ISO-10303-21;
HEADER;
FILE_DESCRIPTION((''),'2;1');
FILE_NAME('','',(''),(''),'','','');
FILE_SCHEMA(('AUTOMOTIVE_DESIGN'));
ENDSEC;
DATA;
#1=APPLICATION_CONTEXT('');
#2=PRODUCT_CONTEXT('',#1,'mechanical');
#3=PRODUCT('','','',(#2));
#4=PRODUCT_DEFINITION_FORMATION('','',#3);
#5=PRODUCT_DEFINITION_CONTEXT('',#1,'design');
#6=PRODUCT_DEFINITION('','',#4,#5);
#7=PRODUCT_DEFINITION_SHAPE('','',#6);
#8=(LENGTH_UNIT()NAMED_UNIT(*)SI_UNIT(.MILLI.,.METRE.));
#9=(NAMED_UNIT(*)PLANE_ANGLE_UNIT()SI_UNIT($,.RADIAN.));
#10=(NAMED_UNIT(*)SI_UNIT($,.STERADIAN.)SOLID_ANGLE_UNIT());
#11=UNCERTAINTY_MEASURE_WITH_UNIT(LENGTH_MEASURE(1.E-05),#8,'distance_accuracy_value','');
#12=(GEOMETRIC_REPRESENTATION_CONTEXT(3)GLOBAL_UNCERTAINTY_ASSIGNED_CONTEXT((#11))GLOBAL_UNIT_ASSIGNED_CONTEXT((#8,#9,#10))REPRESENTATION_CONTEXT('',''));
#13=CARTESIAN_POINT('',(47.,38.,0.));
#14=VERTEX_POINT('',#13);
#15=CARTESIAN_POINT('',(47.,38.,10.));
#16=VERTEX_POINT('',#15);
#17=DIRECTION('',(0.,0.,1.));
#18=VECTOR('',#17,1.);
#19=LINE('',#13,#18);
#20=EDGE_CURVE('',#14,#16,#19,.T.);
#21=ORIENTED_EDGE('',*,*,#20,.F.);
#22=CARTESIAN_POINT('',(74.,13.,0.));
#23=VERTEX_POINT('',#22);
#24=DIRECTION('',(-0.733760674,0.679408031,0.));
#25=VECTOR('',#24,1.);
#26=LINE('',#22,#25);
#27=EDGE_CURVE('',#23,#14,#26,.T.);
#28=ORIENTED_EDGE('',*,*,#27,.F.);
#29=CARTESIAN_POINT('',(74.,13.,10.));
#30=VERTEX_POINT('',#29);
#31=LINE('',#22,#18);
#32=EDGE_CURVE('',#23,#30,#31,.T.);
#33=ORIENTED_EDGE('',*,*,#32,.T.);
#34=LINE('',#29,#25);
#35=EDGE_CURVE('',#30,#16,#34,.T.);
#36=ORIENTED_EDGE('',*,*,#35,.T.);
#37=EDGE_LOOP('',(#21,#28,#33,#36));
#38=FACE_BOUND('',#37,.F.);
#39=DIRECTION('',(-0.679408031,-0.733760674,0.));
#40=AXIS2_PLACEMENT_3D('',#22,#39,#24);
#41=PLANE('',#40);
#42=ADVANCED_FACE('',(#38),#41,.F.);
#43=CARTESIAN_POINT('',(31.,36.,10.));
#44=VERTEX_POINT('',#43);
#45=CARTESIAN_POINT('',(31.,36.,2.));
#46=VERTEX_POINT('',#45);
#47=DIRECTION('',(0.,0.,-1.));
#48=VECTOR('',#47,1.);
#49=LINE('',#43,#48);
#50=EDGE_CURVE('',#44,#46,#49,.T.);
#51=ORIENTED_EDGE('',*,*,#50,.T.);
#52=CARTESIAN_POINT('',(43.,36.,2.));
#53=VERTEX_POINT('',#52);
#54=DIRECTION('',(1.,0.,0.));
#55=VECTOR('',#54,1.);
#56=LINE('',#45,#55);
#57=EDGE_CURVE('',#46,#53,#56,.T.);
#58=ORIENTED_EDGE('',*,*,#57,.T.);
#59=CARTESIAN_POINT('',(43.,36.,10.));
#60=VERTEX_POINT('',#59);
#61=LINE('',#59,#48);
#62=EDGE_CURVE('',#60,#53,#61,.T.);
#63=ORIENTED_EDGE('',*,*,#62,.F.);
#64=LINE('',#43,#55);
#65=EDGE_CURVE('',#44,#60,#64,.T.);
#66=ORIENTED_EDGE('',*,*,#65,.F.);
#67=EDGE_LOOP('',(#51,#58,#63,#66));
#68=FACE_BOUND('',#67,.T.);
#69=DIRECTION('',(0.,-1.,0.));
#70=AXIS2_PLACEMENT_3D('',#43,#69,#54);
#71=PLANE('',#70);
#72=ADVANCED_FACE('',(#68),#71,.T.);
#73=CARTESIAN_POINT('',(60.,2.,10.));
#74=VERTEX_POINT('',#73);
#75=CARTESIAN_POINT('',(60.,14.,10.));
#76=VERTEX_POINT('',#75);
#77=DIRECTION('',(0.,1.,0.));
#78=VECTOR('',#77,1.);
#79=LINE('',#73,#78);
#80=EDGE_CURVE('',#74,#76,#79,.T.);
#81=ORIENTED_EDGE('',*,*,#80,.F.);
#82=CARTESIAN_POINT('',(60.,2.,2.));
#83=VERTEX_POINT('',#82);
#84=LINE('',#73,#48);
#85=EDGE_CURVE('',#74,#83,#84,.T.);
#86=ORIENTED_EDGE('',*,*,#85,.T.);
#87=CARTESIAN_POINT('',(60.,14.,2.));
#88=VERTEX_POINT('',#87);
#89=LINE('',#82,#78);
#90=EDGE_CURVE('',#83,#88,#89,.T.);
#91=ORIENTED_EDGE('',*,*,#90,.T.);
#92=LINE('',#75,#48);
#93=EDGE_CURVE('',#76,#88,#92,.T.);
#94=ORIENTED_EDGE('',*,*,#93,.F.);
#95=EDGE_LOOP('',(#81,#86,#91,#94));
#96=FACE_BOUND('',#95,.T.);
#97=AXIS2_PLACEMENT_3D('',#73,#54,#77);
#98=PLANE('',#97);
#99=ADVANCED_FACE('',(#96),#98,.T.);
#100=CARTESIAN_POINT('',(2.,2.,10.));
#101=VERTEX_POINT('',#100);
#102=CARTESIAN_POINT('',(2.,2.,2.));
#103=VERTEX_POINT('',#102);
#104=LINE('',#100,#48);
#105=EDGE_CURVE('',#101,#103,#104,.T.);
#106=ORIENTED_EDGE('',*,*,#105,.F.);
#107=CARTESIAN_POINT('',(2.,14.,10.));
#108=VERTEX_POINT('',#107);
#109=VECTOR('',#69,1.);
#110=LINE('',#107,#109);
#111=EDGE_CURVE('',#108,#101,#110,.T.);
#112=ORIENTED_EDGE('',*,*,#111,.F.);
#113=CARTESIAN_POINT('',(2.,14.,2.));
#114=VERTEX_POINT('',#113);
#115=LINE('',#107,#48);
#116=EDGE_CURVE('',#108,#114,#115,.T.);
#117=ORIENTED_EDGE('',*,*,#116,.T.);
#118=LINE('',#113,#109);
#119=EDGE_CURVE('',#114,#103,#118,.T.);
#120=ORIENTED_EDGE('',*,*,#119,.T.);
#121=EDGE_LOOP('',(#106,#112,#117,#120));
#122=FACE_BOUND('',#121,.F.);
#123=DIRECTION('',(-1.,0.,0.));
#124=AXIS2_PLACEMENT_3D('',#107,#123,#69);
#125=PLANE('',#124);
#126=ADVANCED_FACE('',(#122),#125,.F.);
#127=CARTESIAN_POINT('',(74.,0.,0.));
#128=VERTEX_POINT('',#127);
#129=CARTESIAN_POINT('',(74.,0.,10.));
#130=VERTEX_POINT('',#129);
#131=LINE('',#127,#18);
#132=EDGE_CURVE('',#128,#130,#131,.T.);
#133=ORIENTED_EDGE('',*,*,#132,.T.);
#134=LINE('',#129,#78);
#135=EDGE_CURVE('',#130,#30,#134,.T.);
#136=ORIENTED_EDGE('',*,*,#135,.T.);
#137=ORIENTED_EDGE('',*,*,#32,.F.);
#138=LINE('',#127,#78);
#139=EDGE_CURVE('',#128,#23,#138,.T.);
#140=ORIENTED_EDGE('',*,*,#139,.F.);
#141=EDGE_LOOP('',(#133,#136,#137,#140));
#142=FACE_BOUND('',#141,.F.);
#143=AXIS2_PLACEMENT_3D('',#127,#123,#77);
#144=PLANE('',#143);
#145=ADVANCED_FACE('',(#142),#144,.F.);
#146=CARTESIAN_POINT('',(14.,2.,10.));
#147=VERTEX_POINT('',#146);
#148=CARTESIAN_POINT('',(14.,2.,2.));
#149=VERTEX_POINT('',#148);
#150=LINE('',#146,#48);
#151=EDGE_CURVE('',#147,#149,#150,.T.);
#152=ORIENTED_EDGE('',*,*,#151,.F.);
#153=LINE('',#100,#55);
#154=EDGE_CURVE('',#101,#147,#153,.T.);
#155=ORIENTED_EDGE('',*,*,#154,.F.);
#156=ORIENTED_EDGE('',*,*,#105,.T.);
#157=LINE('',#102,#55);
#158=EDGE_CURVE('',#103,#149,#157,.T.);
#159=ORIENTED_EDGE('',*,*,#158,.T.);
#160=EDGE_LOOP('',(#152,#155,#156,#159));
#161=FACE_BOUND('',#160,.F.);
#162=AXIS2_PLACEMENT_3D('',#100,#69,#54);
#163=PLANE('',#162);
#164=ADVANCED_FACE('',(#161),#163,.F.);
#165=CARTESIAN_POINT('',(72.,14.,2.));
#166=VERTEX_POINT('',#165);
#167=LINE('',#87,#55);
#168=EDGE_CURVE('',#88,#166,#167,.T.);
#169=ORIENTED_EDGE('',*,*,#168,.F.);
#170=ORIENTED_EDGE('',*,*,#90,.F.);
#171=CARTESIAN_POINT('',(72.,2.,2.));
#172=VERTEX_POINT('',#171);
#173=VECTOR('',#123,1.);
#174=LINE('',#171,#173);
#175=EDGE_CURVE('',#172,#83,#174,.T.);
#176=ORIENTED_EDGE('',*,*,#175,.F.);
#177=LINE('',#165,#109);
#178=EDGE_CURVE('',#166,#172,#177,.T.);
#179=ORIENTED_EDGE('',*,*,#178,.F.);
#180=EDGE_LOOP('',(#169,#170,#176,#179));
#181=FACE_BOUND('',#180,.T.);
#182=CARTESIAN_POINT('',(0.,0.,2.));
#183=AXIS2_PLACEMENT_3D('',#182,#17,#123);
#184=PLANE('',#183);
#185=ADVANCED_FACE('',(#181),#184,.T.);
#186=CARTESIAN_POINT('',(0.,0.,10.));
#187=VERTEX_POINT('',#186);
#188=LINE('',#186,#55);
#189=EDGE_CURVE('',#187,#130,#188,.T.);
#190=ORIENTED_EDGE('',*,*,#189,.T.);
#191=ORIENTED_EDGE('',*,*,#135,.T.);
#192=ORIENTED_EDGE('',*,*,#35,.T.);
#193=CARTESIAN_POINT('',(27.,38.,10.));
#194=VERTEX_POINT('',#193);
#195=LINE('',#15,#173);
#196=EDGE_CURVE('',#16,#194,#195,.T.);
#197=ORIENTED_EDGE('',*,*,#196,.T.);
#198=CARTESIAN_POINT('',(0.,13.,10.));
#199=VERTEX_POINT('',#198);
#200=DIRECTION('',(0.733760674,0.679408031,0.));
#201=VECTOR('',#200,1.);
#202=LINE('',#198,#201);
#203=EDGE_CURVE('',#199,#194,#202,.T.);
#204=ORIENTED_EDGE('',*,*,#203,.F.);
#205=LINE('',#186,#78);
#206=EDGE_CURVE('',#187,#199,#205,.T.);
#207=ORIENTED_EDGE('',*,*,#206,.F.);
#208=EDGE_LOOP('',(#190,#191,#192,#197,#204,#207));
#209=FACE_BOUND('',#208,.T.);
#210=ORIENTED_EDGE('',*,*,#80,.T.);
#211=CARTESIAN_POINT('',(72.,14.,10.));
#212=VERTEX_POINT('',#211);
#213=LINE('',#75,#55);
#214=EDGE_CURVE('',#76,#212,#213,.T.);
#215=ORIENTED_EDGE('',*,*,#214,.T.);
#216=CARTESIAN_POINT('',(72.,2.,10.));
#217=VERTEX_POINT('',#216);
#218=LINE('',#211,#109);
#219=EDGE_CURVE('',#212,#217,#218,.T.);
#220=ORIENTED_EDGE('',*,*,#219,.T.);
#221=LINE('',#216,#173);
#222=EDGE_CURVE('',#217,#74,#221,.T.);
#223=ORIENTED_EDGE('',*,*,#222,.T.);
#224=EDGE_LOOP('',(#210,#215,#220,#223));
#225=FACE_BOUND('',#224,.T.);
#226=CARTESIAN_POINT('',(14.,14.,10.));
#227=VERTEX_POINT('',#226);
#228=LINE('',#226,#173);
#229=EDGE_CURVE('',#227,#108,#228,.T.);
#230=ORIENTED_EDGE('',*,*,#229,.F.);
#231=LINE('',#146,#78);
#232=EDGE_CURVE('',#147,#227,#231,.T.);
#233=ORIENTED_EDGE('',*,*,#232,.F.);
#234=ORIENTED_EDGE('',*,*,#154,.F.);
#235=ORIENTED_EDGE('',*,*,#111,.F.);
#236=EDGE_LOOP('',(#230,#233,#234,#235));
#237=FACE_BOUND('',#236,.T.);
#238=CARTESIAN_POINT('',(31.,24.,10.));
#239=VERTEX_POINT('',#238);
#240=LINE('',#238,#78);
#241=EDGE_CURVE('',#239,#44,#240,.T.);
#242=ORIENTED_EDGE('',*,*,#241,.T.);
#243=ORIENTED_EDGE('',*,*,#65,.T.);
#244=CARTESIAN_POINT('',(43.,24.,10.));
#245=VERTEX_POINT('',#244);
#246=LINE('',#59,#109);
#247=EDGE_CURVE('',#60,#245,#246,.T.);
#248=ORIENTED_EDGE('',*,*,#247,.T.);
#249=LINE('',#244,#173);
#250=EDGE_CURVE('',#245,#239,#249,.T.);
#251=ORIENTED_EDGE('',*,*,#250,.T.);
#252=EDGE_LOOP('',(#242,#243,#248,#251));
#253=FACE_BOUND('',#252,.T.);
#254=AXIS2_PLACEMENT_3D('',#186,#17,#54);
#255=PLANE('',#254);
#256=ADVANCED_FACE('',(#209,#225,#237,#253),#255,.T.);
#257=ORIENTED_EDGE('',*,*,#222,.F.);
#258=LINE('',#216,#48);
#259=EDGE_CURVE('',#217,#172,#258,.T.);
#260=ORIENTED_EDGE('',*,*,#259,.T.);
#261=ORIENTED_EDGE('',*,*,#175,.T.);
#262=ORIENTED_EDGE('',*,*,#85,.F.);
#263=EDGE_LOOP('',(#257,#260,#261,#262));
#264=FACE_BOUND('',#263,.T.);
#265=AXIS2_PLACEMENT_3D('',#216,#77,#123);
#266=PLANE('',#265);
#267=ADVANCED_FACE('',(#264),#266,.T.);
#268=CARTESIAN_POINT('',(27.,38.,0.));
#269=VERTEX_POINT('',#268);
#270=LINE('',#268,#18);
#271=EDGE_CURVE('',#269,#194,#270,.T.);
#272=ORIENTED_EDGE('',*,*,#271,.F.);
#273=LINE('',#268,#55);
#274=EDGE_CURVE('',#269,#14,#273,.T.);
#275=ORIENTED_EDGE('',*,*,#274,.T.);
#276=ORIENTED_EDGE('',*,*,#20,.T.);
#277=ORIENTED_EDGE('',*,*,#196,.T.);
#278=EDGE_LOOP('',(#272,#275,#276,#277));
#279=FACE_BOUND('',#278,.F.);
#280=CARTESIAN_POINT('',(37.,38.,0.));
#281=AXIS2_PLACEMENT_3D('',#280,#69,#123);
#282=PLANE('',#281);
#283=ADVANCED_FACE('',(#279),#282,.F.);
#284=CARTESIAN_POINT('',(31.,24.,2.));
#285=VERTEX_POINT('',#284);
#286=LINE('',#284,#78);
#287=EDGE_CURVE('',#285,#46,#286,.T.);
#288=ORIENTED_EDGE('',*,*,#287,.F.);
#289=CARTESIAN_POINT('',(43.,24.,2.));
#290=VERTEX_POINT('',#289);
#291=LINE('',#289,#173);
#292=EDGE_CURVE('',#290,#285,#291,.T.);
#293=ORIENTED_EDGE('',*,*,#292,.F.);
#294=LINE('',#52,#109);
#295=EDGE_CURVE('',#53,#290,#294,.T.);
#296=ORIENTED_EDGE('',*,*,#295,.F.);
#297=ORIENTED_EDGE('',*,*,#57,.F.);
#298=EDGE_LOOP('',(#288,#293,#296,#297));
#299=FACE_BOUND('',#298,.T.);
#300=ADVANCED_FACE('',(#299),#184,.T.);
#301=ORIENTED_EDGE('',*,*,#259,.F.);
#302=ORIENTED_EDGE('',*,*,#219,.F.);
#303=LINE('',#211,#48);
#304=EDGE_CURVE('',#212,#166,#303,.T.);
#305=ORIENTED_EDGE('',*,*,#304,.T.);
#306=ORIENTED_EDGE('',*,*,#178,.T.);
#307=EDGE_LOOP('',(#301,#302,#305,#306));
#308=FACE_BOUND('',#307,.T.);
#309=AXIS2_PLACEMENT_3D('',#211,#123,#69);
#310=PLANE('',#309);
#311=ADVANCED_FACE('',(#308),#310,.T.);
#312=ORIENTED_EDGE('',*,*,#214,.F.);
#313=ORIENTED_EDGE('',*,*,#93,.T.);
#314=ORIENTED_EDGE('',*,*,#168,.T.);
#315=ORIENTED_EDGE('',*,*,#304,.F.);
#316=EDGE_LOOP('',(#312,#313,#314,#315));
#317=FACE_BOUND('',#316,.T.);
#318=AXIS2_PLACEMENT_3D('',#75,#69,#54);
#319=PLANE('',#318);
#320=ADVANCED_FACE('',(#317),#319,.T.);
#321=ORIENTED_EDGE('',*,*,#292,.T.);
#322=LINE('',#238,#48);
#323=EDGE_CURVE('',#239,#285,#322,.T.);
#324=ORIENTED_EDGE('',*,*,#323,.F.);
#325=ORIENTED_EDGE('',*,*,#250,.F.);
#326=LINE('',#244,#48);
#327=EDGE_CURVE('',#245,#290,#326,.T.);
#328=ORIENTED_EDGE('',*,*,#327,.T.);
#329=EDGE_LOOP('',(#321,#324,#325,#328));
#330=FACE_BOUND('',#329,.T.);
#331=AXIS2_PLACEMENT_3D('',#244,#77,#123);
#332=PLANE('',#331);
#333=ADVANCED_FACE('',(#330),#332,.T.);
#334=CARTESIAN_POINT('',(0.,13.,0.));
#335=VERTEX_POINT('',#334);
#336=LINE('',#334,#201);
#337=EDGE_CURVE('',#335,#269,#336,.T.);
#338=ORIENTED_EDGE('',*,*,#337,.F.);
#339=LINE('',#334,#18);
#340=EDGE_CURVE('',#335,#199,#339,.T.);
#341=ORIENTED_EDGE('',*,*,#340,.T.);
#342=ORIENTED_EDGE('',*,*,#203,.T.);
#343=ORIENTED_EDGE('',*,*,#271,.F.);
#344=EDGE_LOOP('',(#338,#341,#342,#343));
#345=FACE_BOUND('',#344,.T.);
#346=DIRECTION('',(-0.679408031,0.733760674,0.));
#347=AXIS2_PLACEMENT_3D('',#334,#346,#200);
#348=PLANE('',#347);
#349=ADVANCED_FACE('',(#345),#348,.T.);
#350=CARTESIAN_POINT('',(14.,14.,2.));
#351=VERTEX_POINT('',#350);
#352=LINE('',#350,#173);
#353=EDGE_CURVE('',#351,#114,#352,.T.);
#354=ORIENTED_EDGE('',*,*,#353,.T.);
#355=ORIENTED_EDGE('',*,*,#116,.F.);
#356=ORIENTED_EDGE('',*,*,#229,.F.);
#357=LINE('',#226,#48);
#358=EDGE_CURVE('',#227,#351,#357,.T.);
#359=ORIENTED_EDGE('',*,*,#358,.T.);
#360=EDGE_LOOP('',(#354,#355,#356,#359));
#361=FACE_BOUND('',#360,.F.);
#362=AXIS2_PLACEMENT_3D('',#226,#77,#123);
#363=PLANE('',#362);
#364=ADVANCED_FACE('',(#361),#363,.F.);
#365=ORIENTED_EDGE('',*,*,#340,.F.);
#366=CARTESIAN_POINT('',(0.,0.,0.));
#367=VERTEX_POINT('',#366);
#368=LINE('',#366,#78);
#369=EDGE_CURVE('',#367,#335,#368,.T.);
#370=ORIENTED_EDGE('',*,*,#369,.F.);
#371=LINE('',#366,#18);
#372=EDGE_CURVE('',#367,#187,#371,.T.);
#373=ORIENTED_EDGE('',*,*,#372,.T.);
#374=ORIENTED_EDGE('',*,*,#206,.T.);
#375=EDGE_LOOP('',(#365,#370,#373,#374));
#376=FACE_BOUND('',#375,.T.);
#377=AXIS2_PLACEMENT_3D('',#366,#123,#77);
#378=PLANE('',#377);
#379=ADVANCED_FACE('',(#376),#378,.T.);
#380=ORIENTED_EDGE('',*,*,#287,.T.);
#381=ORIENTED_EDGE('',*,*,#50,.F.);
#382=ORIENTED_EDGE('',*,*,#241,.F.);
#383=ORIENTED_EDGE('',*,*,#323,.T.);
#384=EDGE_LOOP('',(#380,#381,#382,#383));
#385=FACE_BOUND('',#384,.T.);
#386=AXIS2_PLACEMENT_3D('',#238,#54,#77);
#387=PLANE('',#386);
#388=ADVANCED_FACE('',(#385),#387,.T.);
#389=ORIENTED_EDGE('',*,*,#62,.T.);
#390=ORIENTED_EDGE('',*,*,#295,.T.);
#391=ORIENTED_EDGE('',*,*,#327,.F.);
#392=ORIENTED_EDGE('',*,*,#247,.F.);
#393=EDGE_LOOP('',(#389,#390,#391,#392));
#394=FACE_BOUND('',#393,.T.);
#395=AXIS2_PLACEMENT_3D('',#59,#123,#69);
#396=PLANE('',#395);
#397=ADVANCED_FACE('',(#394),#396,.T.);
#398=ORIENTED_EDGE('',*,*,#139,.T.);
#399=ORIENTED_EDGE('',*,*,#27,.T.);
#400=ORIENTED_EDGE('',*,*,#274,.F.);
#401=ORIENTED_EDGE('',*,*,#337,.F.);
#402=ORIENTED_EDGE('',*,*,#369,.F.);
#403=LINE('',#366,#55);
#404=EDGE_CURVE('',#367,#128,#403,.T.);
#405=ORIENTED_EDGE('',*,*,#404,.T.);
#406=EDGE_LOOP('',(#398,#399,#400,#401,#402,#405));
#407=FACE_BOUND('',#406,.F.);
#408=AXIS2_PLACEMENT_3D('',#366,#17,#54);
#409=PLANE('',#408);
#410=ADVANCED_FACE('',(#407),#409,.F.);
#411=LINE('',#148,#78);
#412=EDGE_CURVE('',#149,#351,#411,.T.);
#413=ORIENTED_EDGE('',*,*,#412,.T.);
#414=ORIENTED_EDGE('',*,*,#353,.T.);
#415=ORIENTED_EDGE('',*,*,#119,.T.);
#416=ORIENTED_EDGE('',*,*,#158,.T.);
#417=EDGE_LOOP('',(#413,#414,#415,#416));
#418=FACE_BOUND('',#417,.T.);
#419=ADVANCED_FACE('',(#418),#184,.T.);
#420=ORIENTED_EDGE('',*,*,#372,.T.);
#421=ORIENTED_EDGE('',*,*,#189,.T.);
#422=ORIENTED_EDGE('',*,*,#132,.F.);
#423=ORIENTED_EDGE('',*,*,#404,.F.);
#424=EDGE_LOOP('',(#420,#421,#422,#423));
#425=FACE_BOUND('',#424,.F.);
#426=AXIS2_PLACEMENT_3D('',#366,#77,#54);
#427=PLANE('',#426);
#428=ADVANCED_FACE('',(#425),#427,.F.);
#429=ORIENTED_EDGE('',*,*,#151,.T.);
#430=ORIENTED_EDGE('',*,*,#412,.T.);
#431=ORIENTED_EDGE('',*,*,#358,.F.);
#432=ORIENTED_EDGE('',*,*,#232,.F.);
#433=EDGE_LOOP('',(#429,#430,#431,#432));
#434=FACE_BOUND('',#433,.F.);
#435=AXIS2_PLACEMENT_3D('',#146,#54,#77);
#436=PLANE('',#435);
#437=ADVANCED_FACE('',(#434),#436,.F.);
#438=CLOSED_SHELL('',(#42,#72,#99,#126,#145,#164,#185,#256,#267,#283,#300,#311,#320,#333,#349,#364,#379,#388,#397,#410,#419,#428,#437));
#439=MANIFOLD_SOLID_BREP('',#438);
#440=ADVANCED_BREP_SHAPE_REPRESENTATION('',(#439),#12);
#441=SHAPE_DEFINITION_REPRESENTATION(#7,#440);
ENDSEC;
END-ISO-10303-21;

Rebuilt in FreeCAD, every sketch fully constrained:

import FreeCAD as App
import Part
import Sketcher
from FreeCAD import Vector
Q = App.Units.Quantity


def add_polygon(sketch, points):
    """Adds a closed chain of lines whose ends are joined by coincident constraints."""
    first, n = sketch.GeometryCount, len(points)
    for a, b in zip(points, points[1:] + points[:1]):
        sketch.addGeometry(Part.LineSegment(App.Vector(*a, 0), App.Vector(*b, 0)), False)
    for i in range(n):
        sketch.addConstraint(Sketcher.Constraint("Coincident", first + i, 2, first + (i + 1) % n, 1))

doc = App.newDocument("Part")
body = doc.addObject("PartDesign::Body", "Body")

# Sketch on XY plane
sketch1 = doc.addObject("Sketcher::SketchObject", "Sketch")
body.addObject(sketch1)
sketch1.AttachmentSupport = (doc.XY_Plane, [""])
sketch1.MapMode = "FlatFace"
add_polygon(sketch1, [(0, 13), (0, 0), (74, 0), (74, 13), (47, 38), (27, 38)])  # lines 0-5
sketch1.addConstraint([
    Sketcher.Constraint("Vertical", 0),
    Sketcher.Constraint("Horizontal", 1),
    Sketcher.Constraint("Vertical", 2),
    Sketcher.Constraint("Horizontal", 4),
    Sketcher.Constraint("Coincident", 0, 2, -1, 1),
    Sketcher.Constraint("Horizontal", 2, 2, 5, 2),
    Sketcher.Constraint("Equal", 3, 5),
    Sketcher.Constraint("DistanceX", 1, 1, 1, 2, Q("74 mm")),
    Sketcher.Constraint("DistanceY", 0, 2, 0, 1, Q("13 mm")),
    Sketcher.Constraint("DistanceY", -1, 1, 3, 2, Q("38 mm")),
    Sketcher.Constraint("DistanceX", 4, 2, 4, 1, Q("20 mm")),
])
pad1 = doc.addObject("PartDesign::Pad", "Pad")
body.addObject(pad1)
pad1.Profile = sketch1
pad1.Length = 10

# Sketch on XY plane
sketch2 = doc.addObject("Sketcher::SketchObject", "Sketch001")
body.addObject(sketch2)
sketch2.AttachmentSupport = (doc.XY_Plane, [""])
sketch2.MapMode = "FlatFace"
sketch2.AttachmentOffset = App.Placement(Vector(0, 0, 10), App.Rotation())
add_polygon(sketch2, [(43, 36), (31, 36), (31, 24), (43, 24)])  # lines 0-3
add_polygon(sketch2, [(2, 14), (2, 2), (14, 2), (14, 14)])  # lines 4-7
add_polygon(sketch2, [(60, 2), (72, 2), (72, 14), (60, 14)])  # lines 8-11
sketch2.addConstraint([
    Sketcher.Constraint("Horizontal", 0),
    Sketcher.Constraint("Vertical", 1),
    Sketcher.Constraint("Horizontal", 2),
    Sketcher.Constraint("Vertical", 3),
    Sketcher.Constraint("Vertical", 4),
    Sketcher.Constraint("Horizontal", 5),
    Sketcher.Constraint("Vertical", 6),
    Sketcher.Constraint("Horizontal", 7),
    Sketcher.Constraint("Horizontal", 8),
    Sketcher.Constraint("Vertical", 9),
    Sketcher.Constraint("Horizontal", 10),
    Sketcher.Constraint("Vertical", 11),
    Sketcher.Constraint("Horizontal", 5, 2, 8, 2),
    Sketcher.Constraint("Horizontal", 7, 2, 9, 2),
    Sketcher.Constraint("Equal", 2, 5),
    Sketcher.Constraint("Equal", 7, 8),
    Sketcher.Constraint("Equal", 10, 1),
    Sketcher.Constraint("Equal", 3, 4),
    Sketcher.Constraint("DistanceX", 0, 2, 0, 1, Q("12 mm")),
    Sketcher.Constraint("DistanceX", -1, 1, 4, 2, Q("2 mm")),
    Sketcher.Constraint("DistanceY", -1, 1, 4, 2, Q("2 mm")),
    Sketcher.Constraint("DistanceX", -1, 1, 0, 2, Q("31 mm")),
    Sketcher.Constraint("DistanceY", -1, 1, 0, 2, Q("36 mm")),
    Sketcher.Constraint("DistanceX", -1, 1, 8, 2, Q("72 mm")),
])
pocket1 = doc.addObject("PartDesign::Pocket", "Pocket")
body.addObject(pocket1)
pocket1.Profile = sketch2
pocket1.Length = 8

doc.recompute()
